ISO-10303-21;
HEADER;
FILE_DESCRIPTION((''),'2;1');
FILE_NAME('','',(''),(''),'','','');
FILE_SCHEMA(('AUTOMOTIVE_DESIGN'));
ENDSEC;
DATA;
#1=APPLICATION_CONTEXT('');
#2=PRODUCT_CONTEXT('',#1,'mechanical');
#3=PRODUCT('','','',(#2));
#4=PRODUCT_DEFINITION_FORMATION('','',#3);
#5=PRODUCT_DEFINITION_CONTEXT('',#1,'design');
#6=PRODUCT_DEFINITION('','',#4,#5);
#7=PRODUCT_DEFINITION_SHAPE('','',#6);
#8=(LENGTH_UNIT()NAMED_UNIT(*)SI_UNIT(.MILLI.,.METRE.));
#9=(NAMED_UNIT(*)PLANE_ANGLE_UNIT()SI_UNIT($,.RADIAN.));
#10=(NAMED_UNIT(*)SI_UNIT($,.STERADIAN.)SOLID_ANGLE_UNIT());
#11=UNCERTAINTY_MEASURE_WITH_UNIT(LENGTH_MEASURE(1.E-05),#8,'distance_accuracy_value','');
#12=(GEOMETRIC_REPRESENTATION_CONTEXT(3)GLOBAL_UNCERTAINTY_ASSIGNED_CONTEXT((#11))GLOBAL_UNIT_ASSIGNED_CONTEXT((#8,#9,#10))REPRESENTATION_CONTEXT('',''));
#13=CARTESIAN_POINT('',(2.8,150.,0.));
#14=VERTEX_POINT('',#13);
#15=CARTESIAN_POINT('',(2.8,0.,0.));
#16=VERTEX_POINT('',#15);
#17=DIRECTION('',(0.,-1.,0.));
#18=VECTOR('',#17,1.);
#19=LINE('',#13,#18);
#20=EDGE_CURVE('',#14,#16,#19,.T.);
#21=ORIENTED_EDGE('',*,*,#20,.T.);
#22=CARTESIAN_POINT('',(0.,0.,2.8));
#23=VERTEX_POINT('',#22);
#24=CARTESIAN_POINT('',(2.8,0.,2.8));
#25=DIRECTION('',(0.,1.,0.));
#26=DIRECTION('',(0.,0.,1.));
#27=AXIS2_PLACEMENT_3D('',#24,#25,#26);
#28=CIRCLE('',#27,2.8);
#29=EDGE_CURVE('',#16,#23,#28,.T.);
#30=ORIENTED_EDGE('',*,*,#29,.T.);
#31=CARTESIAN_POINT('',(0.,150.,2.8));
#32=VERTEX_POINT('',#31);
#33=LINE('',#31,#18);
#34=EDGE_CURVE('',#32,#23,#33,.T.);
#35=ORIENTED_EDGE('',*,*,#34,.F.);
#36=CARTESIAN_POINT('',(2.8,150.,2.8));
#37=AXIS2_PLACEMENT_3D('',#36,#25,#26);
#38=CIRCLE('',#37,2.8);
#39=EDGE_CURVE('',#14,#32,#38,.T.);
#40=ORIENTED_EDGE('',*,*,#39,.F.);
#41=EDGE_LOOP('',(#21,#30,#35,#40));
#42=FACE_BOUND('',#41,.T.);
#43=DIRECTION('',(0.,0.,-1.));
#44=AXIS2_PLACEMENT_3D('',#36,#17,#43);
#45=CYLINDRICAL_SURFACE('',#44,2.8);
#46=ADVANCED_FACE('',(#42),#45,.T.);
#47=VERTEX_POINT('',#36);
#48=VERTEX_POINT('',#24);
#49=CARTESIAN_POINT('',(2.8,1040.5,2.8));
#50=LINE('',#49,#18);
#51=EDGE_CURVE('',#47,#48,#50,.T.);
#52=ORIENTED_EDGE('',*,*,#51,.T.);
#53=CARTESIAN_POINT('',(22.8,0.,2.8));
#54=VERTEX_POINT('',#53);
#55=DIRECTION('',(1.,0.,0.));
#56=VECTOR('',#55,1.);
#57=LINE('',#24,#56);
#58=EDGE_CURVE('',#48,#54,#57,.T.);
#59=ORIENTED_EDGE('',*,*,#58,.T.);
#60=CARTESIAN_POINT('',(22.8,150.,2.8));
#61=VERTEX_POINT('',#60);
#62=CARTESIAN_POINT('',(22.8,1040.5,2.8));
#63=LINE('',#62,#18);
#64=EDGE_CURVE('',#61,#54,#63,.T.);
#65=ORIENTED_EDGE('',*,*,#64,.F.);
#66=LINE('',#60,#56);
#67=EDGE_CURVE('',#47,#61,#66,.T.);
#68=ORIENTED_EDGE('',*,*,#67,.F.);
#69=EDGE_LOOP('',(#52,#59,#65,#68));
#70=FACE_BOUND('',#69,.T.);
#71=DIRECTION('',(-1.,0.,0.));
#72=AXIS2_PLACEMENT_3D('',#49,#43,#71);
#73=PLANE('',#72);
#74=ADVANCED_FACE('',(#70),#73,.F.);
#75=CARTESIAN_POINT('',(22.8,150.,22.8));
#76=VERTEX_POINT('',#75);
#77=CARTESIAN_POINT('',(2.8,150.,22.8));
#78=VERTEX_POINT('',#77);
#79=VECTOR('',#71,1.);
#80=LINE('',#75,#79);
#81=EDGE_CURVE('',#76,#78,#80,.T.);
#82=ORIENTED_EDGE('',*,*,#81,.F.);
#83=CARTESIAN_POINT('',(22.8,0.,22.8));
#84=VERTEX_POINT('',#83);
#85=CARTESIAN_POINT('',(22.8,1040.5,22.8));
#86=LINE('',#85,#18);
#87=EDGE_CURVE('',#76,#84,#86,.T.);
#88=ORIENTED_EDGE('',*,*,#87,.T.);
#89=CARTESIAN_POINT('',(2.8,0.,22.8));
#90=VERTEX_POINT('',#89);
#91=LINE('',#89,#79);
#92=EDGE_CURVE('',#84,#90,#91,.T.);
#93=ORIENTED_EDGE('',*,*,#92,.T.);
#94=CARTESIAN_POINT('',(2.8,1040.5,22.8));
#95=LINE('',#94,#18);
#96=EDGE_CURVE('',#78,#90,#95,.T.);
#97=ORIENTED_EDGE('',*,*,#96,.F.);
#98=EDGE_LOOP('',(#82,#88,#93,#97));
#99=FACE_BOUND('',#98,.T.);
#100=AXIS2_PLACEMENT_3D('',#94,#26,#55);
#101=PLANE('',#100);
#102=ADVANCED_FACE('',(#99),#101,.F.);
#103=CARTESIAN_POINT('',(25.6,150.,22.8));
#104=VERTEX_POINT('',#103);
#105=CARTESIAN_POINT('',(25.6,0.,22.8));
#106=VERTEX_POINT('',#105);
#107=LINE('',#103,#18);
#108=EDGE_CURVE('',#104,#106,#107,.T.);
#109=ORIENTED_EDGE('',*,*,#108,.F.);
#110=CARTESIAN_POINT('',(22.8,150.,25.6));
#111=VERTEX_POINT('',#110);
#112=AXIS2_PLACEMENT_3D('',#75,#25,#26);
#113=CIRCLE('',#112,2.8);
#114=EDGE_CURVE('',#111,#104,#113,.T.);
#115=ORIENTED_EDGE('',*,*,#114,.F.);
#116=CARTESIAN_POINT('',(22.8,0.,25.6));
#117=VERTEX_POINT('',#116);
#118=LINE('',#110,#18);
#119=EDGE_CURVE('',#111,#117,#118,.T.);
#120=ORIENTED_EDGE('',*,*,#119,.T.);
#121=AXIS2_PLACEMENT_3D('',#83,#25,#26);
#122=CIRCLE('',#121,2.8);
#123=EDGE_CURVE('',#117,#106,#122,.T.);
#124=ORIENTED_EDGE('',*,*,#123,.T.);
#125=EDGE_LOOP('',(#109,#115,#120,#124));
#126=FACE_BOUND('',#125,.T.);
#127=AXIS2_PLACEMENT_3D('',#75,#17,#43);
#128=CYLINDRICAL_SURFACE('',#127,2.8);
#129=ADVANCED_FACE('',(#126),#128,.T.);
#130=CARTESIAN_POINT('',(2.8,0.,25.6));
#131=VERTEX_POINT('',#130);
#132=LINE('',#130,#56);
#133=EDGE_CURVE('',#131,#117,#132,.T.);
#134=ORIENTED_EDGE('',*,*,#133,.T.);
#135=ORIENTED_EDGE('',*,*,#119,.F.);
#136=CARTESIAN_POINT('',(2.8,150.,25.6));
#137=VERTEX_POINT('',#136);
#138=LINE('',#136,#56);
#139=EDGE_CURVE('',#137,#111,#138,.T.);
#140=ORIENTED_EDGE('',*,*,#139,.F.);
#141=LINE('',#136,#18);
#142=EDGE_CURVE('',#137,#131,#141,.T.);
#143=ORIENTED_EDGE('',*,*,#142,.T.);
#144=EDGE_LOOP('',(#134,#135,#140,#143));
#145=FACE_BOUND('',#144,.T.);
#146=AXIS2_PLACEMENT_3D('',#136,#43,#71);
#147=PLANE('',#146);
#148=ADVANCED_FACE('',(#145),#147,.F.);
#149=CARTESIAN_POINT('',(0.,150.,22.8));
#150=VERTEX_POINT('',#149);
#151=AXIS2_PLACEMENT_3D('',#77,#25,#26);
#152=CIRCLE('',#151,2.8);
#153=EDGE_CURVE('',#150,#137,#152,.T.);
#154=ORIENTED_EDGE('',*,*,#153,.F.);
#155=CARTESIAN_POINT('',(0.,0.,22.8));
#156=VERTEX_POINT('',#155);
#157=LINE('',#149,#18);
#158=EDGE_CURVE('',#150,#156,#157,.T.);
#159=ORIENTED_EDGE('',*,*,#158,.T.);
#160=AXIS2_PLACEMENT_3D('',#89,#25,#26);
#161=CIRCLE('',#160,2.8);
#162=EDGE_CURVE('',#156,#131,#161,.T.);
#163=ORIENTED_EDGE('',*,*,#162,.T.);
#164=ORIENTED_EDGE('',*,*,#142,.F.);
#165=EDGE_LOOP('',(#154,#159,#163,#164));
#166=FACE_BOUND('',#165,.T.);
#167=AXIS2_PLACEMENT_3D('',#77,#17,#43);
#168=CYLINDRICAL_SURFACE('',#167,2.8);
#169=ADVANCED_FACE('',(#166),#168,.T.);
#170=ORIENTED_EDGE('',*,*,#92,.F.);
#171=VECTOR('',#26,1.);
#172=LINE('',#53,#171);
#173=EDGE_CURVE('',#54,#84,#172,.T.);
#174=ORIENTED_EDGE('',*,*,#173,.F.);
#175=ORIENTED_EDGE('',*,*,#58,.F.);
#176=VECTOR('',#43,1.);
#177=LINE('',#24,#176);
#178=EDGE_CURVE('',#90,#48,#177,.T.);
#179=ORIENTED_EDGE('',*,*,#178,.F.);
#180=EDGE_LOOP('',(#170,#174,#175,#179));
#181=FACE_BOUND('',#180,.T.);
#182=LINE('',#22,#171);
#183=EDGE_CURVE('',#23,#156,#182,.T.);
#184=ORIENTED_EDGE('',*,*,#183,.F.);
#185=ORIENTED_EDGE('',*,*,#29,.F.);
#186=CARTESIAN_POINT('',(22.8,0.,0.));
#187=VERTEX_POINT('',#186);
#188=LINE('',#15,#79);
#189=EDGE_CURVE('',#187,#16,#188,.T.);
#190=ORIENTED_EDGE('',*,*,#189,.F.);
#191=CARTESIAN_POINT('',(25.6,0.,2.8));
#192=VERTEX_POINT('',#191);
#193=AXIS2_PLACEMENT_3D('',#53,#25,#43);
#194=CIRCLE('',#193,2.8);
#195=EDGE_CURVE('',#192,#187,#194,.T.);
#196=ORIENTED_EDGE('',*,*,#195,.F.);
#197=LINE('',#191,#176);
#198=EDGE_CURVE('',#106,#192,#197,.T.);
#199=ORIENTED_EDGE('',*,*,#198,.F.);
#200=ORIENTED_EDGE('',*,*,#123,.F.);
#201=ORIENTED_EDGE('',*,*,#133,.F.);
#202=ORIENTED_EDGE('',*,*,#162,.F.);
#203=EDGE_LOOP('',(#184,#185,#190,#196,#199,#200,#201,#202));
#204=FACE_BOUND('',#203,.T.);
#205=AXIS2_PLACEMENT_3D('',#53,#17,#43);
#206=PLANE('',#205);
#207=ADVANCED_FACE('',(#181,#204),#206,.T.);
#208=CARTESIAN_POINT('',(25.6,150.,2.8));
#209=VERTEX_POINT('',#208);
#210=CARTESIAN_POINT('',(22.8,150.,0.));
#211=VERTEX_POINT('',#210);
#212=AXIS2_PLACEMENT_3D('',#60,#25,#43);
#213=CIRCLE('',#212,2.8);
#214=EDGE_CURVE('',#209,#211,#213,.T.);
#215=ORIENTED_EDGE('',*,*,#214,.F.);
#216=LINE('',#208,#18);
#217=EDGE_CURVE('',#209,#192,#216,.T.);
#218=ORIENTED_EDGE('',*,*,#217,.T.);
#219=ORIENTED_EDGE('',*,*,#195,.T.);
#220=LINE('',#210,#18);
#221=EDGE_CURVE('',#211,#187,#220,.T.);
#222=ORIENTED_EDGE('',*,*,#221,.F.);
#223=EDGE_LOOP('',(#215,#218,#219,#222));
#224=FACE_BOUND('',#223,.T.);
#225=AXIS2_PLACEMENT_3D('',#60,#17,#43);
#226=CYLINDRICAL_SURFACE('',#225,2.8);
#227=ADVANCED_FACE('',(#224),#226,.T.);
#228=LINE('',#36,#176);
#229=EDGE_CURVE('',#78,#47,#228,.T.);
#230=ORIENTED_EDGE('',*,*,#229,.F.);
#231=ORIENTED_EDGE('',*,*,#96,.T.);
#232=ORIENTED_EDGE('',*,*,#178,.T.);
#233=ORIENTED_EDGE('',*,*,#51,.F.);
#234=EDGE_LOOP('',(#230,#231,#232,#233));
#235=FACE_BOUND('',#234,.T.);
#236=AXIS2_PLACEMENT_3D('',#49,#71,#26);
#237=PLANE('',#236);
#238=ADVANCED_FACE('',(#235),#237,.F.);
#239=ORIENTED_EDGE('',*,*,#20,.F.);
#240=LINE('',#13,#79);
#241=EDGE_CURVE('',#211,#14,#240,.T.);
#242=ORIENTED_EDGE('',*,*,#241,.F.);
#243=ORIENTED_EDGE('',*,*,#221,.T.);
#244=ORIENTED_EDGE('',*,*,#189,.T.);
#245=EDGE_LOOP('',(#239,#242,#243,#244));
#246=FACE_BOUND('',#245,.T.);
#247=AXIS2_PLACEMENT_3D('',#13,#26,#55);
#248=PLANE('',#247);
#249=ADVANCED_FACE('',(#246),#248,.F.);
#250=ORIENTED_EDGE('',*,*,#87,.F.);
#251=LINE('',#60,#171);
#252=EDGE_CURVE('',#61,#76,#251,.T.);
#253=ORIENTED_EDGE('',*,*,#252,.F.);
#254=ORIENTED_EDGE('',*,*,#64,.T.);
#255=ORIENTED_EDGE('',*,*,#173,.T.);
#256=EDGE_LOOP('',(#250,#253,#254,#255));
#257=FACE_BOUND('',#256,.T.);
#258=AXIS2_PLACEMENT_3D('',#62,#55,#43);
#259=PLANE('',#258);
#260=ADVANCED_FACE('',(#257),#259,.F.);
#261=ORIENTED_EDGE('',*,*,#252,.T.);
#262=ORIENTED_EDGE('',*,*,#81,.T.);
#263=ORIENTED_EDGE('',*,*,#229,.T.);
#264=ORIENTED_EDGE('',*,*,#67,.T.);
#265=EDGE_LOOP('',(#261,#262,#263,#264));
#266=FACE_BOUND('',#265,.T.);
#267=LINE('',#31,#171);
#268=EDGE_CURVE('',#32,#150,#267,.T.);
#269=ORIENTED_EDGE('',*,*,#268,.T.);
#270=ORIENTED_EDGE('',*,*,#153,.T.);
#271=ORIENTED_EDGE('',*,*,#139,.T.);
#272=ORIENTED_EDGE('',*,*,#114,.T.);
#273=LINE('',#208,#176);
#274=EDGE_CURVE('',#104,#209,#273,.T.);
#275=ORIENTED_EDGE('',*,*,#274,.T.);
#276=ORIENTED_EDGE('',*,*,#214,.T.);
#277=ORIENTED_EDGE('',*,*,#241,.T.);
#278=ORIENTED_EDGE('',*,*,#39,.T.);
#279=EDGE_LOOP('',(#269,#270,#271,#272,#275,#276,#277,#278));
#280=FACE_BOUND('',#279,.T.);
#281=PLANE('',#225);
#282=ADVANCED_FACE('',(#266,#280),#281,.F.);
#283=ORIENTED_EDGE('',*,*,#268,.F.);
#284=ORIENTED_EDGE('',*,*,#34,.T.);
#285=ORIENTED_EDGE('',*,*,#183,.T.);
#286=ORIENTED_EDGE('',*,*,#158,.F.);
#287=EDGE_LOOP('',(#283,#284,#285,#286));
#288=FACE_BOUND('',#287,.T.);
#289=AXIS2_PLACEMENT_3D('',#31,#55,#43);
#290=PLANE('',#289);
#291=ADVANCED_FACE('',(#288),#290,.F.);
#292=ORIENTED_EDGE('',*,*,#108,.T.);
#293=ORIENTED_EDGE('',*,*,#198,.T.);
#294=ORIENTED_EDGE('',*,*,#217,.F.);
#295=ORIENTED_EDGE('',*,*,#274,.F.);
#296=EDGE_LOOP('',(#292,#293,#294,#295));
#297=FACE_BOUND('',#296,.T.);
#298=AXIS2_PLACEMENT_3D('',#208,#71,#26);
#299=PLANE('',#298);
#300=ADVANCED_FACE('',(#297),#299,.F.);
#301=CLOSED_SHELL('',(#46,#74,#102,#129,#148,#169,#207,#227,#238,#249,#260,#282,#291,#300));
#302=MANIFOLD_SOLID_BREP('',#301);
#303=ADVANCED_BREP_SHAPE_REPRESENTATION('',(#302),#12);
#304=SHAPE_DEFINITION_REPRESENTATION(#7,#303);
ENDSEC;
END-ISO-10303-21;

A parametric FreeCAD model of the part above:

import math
import FreeCAD as App
import Part
import Sketcher
from FreeCAD import Vector


def add_polygon(sketch, points):
    """Adds a closed chain of lines whose ends are joined by coincident constraints."""
    first, n = sketch.GeometryCount, len(points)
    for a, b in zip(points, points[1:] + points[:1]):
        sketch.addGeometry(Part.LineSegment(App.Vector(*a, 0), App.Vector(*b, 0)), False)
    for i in range(n):
        sketch.addConstraint(Sketcher.Constraint("Coincident", first + i, 2, first + (i + 1) % n, 1))

doc = App.newDocument("Part")
params = doc.addObject("Spreadsheet::Sheet", "Params")
for row, (alias, value) in enumerate([
    ("sketch1_radius", "2.8 mm"),
    ("sketch1_width", "20 mm"),
    ("pad1_length", "150 mm"),
    ("sketch2_width", "20 mm"),
    ("pocket1_length", "1040.5 mm"),
], start=1):
    params.set(f"A{row}", alias)
    params.set(f"B{row}", "=" + value)
    params.setAlias(f"B{row}", alias)

body = doc.addObject("PartDesign::Body", "Body")

sketch1 = doc.addObject("Sketcher::SketchObject", "Sketch")
body.addObject(sketch1)
sketch1.AttachmentSupport = (doc.XZ_Plane, [""])
sketch1.MapMode = "FlatFace"
sketch1.addGeometry(Part.LineSegment(Vector(22.8, 0, 0), Vector(2.8, 0, 0)), False)
sketch1.addGeometry(Part.ArcOfCircle(Part.Circle(Vector(2.8, 2.8, 0), Vector(0, 0, 1), 2.8), math.radians(-180), math.radians(-90)), False)
sketch1.addGeometry(Part.LineSegment(Vector(0, 2.8, 0), Vector(0, 22.8, 0)), False)
sketch1.addGeometry(Part.ArcOfCircle(Part.Circle(Vector(2.8, 22.8, 0), Vector(0, 0, 1), 2.8), math.radians(90), math.radians(180)), False)
sketch1.addGeometry(Part.LineSegment(Vector(2.8, 25.6, 0), Vector(22.8, 25.6, 0)), False)
sketch1.addGeometry(Part.ArcOfCircle(Part.Circle(Vector(22.8, 22.8, 0), Vector(0, 0, 1), 2.8), math.radians(0), math.radians(90)), False)
sketch1.addGeometry(Part.LineSegment(Vector(25.6, 22.8, 0), Vector(25.6, 2.8, 0)), False)
sketch1.addGeometry(Part.ArcOfCircle(Part.Circle(Vector(22.8, 2.8, 0), Vector(0, 0, 1), 2.8), math.radians(-90), math.radians(0)), False)
sketch1.addConstraint(Sketcher.Constraint("Tangent", 0, 2, 1, 2))
sketch1.addConstraint(Sketcher.Constraint("Tangent", 1, 1, 2, 1))
sketch1.addConstraint(Sketcher.Constraint("Tangent", 2, 2, 3, 2))
sketch1.addConstraint(Sketcher.Constraint("Tangent", 3, 1, 4, 1))
sketch1.addConstraint(Sketcher.Constraint("Tangent", 4, 2, 5, 2))
sketch1.addConstraint(Sketcher.Constraint("Tangent", 5, 1, 6, 1))
sketch1.addConstraint(Sketcher.Constraint("Tangent", 6, 2, 7, 2))
sketch1.addConstraint(Sketcher.Constraint("Tangent", 7, 1, 0, 1))
sketch1.addConstraint(Sketcher.Constraint("Horizontal", 0))
sketch1.addConstraint(Sketcher.Constraint("Vertical", 2))
sketch1.addConstraint(Sketcher.Constraint("Horizontal", 4))
sketch1.addConstraint(Sketcher.Constraint("Vertical", 6))
sketch1.addConstraint(Sketcher.Constraint("Equal", 1, 3))
sketch1.addConstraint(Sketcher.Constraint("Equal", 3, 5))
sketch1.addConstraint(Sketcher.Constraint("Equal", 5, 7))
sketch1.addConstraint(Sketcher.Constraint("PointOnObject", 0, 2, -1))
sketch1.addConstraint(Sketcher.Constraint("PointOnObject", 1, 1, -2))
sketch1.addConstraint(Sketcher.Constraint("Equal", 4, 2))
sketch1.addConstraint(Sketcher.Constraint("Radius", 1, 2.8))
sketch1.addConstraint(Sketcher.Constraint("DistanceX", 0, 2, 0, 1, 20.0))
sketch1.setExpression("Constraints[18]", "Params.sketch1_radius")
sketch1.setExpression("Constraints[19]", "Params.sketch1_width")
pad1 = doc.addObject("PartDesign::Pad", "Pad")
body.addObject(pad1)
pad1.Profile = sketch1
pad1.setExpression("Length", "Params.pad1_length")
pad1.Reversed = True

sketch2 = doc.addObject("Sketcher::SketchObject", "Sketch001")
body.addObject(sketch2)
sketch2.AttachmentSupport = (doc.XZ_Plane, [""])
sketch2.MapMode = "FlatFace"
add_polygon(sketch2, [(22.8, 2.8), (22.8, 22.8), (2.8, 22.8), (2.8, 2.8)])
sketch2.addConstraint(Sketcher.Constraint("Vertical", 0))
sketch2.addConstraint(Sketcher.Constraint("Horizontal", 1))
sketch2.addConstraint(Sketcher.Constraint("Vertical", 2))
sketch2.addConstraint(Sketcher.Constraint("Horizontal", 3))
sketch2.addConstraint(Sketcher.Constraint("Equal", 3, 0))
sketch2.addConstraint(Sketcher.Constraint("DistanceX", 1, 2, 1, 1, 20.0))
sketch2.addConstraint(Sketcher.Constraint("DistanceX", -1, 1, 0, 2, 22.8))
sketch2.addConstraint(Sketcher.Constraint("DistanceY", -1, 1, 0, 2, 22.8))
sketch2.setExpression("Constraints[9]", "Params.sketch2_width")
pocket1 = doc.addObject("PartDesign::Pocket", "Pocket")
body.addObject(pocket1)
pocket1.Profile = sketch2
pocket1.setExpression("Length", "Params.pocket1_length")

doc.recompute()
